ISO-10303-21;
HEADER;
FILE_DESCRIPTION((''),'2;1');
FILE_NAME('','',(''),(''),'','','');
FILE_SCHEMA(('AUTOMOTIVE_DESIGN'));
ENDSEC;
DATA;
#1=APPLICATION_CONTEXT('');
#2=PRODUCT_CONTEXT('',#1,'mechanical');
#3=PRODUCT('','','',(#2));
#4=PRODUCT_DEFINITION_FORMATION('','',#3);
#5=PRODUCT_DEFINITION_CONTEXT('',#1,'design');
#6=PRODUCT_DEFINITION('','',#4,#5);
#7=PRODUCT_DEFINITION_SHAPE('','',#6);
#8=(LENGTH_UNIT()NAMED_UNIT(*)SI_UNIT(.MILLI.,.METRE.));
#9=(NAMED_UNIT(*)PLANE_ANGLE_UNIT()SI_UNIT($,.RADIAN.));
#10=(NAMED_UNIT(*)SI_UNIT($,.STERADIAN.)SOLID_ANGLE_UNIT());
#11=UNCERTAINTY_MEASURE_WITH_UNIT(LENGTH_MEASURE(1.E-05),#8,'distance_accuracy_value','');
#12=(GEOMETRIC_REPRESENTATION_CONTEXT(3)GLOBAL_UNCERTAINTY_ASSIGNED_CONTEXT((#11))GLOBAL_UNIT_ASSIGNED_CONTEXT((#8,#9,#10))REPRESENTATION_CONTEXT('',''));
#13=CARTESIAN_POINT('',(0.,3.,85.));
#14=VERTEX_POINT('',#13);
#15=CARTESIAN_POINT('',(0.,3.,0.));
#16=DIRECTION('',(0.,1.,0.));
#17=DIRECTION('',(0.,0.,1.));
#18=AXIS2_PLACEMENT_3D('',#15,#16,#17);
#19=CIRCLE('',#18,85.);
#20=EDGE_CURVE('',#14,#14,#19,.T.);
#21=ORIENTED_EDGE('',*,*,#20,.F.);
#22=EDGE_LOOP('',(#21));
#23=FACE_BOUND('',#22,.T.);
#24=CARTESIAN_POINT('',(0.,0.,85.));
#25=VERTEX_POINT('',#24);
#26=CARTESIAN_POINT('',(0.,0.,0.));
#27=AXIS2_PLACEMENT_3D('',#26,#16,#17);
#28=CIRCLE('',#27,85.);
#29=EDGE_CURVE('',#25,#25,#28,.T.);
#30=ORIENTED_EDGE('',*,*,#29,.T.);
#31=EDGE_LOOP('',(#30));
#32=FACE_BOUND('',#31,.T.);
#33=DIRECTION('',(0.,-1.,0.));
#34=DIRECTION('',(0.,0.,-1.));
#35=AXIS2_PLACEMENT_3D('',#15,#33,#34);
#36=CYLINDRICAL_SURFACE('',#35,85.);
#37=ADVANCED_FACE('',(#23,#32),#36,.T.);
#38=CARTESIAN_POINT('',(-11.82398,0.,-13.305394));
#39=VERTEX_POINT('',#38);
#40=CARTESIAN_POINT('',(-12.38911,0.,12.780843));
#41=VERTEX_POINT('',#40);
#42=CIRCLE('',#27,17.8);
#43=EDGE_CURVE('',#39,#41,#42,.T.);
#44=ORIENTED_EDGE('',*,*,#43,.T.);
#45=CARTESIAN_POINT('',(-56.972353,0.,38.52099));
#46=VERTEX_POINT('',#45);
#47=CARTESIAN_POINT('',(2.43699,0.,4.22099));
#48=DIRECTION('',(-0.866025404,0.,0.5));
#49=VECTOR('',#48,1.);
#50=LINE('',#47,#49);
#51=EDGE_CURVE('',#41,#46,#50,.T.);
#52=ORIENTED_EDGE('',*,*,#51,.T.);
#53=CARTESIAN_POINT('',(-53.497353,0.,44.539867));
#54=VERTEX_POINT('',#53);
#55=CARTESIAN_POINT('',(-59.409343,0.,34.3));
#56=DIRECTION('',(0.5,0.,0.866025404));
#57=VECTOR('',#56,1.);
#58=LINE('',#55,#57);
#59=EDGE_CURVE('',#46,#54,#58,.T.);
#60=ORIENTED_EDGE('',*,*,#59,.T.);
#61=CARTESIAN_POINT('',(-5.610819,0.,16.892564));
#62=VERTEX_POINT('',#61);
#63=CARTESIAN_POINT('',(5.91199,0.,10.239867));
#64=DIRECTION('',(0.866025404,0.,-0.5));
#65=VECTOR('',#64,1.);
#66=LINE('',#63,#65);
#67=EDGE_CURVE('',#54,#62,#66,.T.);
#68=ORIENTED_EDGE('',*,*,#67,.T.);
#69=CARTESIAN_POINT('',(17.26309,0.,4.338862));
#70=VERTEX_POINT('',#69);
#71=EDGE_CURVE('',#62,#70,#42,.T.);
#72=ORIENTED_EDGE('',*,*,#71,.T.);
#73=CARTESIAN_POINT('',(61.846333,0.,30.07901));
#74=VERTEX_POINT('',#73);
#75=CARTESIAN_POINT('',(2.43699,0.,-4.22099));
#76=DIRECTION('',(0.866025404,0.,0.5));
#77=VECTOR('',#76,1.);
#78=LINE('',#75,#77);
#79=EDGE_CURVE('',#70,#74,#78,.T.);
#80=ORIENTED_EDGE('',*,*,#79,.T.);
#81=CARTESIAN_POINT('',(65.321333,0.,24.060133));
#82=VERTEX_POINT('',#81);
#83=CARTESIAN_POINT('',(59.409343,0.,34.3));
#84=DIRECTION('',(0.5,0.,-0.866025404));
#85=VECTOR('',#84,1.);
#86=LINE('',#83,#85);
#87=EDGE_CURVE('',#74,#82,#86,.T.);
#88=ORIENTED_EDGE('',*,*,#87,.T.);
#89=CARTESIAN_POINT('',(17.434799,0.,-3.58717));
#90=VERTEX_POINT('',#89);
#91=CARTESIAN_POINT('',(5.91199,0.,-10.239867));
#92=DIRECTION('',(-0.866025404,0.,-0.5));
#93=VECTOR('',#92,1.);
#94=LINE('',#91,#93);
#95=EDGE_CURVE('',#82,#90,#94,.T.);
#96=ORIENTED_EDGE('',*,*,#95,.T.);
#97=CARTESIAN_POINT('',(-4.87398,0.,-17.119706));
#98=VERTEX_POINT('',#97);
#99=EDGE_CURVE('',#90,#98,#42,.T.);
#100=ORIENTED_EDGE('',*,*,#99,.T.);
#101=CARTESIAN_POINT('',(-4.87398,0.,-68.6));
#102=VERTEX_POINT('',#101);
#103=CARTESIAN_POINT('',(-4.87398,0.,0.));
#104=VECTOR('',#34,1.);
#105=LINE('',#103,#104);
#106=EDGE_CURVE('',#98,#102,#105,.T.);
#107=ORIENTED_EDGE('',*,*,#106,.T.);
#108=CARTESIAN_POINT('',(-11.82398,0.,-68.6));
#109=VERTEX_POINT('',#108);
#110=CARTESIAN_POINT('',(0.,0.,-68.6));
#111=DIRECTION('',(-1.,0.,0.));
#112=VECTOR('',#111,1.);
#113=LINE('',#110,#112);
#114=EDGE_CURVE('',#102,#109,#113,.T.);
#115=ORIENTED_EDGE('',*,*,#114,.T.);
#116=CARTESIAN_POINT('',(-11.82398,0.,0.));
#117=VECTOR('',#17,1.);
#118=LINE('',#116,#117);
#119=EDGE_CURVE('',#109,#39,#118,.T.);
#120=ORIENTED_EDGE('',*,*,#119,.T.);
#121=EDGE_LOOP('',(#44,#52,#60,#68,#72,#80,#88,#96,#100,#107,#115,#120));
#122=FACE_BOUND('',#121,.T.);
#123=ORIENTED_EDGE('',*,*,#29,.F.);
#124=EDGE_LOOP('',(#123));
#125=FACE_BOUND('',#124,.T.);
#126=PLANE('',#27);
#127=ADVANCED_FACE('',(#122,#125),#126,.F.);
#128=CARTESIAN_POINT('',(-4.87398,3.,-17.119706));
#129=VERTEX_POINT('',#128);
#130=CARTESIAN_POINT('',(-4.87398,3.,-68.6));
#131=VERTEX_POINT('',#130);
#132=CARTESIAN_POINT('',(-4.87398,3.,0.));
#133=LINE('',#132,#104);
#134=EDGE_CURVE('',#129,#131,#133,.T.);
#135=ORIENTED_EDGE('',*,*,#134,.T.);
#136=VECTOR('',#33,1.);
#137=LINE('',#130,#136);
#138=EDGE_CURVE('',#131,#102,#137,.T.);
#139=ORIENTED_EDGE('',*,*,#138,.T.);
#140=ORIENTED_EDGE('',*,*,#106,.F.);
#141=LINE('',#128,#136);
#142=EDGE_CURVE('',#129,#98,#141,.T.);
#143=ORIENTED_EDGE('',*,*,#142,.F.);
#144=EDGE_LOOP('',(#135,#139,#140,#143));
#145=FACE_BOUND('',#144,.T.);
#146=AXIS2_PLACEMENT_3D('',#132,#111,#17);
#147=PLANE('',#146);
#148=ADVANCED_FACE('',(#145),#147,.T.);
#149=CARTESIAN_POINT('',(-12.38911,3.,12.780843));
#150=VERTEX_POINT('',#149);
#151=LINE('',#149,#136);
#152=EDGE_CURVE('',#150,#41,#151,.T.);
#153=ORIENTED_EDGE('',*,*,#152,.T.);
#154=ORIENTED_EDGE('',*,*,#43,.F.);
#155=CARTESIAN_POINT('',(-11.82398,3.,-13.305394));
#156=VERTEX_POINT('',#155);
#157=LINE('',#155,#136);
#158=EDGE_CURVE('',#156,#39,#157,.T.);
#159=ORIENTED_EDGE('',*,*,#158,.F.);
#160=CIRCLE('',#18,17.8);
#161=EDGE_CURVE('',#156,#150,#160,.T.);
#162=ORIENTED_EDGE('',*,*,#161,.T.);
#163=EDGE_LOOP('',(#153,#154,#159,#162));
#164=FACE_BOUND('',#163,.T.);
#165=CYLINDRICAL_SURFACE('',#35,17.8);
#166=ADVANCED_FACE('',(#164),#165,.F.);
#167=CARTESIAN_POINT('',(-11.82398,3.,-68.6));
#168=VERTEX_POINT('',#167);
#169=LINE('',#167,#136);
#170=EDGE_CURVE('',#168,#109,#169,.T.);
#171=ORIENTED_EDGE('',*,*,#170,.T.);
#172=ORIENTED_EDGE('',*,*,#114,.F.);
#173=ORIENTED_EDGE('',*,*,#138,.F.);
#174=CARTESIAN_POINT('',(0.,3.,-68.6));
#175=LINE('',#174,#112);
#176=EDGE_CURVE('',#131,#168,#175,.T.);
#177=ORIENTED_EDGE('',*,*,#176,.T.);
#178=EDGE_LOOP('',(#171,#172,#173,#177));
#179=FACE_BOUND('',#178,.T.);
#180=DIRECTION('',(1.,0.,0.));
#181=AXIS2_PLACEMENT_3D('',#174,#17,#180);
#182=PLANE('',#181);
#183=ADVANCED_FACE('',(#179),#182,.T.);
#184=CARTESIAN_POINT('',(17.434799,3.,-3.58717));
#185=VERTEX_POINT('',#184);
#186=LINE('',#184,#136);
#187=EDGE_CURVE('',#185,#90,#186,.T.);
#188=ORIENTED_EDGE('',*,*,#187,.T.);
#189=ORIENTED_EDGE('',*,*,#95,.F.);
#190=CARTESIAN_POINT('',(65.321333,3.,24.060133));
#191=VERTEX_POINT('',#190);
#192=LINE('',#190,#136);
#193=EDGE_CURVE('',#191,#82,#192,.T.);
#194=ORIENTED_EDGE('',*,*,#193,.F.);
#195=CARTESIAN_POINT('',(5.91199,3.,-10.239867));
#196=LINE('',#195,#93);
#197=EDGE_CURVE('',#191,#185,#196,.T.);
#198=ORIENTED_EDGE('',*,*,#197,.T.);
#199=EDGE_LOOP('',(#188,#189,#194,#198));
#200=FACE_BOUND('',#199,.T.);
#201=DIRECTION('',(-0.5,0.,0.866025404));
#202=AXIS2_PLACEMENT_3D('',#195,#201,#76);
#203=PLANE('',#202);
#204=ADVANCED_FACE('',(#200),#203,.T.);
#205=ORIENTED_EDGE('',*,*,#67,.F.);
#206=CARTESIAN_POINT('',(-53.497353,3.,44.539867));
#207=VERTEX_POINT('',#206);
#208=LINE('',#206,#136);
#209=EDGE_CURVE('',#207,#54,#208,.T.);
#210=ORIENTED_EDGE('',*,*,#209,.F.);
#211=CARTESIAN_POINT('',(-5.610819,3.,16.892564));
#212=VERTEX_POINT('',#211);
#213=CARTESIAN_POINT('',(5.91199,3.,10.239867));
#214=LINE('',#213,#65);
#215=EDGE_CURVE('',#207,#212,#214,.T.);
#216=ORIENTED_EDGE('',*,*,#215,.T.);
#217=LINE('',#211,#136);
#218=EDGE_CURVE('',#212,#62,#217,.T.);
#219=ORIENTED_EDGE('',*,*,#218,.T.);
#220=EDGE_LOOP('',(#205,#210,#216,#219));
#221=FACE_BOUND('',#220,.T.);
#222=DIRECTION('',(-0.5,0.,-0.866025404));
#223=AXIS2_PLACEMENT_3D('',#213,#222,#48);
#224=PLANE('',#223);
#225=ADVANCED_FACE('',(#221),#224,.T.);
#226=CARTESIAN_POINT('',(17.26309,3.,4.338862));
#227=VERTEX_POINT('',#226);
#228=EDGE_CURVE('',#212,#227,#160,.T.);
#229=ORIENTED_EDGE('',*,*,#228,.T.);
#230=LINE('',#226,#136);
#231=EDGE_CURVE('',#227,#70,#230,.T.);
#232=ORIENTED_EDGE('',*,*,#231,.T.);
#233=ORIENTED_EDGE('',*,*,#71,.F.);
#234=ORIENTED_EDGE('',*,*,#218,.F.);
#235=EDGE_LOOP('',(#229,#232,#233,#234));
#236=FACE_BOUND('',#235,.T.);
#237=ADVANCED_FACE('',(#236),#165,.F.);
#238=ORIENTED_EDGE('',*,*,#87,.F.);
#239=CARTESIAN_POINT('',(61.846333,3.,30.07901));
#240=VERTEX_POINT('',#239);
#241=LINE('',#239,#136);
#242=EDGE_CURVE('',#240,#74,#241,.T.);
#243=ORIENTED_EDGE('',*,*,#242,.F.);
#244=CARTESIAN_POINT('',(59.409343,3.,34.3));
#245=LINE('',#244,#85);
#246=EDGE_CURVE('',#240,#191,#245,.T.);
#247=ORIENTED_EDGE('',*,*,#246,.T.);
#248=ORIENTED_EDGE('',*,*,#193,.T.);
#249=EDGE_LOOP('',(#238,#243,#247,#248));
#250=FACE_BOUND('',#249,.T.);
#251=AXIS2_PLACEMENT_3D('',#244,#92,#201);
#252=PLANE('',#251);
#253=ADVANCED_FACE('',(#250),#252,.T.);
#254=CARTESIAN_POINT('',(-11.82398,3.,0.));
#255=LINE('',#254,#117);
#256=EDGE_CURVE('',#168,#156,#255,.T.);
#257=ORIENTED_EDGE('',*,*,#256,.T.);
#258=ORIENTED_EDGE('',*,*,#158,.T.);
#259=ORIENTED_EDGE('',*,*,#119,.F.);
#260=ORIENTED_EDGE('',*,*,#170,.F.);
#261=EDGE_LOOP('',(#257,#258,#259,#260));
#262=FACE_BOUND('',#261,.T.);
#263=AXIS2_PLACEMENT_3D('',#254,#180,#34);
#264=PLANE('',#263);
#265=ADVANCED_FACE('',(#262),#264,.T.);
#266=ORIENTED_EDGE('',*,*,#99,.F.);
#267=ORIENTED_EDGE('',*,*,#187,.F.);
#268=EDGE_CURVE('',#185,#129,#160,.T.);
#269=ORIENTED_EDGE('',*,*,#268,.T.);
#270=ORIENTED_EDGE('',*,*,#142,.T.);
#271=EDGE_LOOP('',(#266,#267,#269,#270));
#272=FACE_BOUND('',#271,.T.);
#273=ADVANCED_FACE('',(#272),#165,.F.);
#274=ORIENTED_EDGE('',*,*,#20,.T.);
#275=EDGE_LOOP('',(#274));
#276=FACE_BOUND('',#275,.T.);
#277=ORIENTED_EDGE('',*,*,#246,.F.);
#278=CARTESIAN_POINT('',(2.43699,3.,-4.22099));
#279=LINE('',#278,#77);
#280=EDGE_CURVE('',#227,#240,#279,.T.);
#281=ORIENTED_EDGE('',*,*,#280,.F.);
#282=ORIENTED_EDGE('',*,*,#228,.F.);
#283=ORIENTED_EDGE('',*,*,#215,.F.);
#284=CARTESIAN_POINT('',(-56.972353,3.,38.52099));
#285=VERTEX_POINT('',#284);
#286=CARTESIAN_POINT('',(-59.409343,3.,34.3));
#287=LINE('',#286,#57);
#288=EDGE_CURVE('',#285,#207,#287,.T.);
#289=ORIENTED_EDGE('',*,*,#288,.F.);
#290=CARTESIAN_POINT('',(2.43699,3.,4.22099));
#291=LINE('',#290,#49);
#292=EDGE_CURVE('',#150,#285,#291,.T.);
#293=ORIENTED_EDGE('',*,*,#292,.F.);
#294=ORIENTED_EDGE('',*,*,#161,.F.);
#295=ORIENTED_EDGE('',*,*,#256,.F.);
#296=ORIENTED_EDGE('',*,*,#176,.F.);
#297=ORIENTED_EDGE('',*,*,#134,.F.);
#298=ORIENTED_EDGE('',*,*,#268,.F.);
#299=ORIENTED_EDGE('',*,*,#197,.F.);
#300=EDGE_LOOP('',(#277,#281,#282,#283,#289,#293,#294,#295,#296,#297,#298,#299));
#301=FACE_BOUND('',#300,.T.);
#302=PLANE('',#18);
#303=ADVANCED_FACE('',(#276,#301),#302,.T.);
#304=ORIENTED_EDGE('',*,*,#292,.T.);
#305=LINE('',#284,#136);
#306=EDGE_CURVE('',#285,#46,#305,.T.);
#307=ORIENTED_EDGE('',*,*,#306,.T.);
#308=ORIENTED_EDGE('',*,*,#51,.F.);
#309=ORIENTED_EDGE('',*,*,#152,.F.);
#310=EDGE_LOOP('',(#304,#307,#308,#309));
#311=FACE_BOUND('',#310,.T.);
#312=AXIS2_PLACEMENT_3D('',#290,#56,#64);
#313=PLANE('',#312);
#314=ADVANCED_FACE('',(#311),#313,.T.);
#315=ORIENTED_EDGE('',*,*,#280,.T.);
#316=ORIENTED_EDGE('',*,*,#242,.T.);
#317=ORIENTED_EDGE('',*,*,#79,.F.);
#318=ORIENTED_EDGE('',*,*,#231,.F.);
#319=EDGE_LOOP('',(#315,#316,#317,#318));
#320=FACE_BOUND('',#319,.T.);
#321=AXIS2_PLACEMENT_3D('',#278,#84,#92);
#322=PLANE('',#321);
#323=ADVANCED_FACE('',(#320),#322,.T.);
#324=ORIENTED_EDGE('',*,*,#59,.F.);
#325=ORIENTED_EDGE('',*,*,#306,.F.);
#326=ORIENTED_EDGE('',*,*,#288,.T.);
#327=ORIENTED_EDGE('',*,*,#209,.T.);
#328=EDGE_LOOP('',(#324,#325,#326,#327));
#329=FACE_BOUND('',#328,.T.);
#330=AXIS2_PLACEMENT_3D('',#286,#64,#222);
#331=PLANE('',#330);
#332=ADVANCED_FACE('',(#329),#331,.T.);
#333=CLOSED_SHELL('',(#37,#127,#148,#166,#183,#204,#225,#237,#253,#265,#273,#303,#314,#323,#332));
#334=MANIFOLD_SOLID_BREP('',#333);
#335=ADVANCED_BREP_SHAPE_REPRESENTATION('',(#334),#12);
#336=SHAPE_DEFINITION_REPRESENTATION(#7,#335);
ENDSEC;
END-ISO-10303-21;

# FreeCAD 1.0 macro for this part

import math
import FreeCAD as App
import Part
import Sketcher
from FreeCAD import Vector
Q = App.Units.Quantity

doc = App.newDocument("Part")
body = doc.addObject("PartDesign::Body", "Body")

# Sketch on XZ plane
sketch1 = body.newObject("Sketcher::SketchObject", "Sketch")
sketch1.AttachmentSupport = (doc.getObject("XZ_Plane"), [""])
sketch1.MapMode = "FlatFace"
sketch1.addGeometry(Part.Circle(Vector(0, 0, 0), Vector(0, 0, 1), 85), False)
sketch1.addGeometry(Part.LineSegment(Vector(-11.82398, -68.6, 0), Vector(-4.87398, -68.6, 0)), False)
sketch1.addGeometry(Part.LineSegment(Vector(-4.87398, -68.6, 0), Vector(-4.87398, -17.119706, 0)), False)
sketch1.addGeometry(Part.ArcOfCircle(Part.Circle(Vector(0, 0, 0), Vector(0, 0, 1), 17.8), math.radians(-105.891653), math.radians(-11.626234)), False)
sketch1.addGeometry(Part.LineSegment(Vector(17.434799, -3.58717, 0), Vector(65.321333, 24.060133, 0)), False)
sketch1.addGeometry(Part.LineSegment(Vector(65.321333, 24.060133, 0), Vector(61.846333, 30.07901, 0)), False)
sketch1.addGeometry(Part.LineSegment(Vector(61.846333, 30.07901, 0), Vector(17.26309, 4.338862, 0)), False)
sketch1.addGeometry(Part.ArcOfCircle(Part.Circle(Vector(0, 0, 0), Vector(0, 0, 1), 17.8), math.radians(14.108347), math.radians(108.373766)), False)
sketch1.addGeometry(Part.LineSegment(Vector(-5.610819, 16.892564, 0), Vector(-53.497353, 44.539867, 0)), False)
sketch1.addGeometry(Part.LineSegment(Vector(-53.497353, 44.539867, 0), Vector(-56.972353, 38.52099, 0)), False)
sketch1.addGeometry(Part.LineSegment(Vector(-56.972353, 38.52099, 0), Vector(-12.38911, 12.780843, 0)), False)
sketch1.addGeometry(Part.ArcOfCircle(Part.Circle(Vector(0, 0, 0), Vector(0, 0, 1), 17.8), math.radians(134.108347), math.radians(228.373766)), False)
sketch1.addGeometry(Part.LineSegment(Vector(-11.82398, -13.305394, 0), Vector(-11.82398, -68.6, 0)), False)
sketch1.addConstraint(Sketcher.Constraint("Coincident", 1, 2, 2, 1))
sketch1.addConstraint(Sketcher.Constraint("Coincident", 2, 2, 3, 1))
sketch1.addConstraint(Sketcher.Constraint("Coincident", 3, 2, 4, 1))
sketch1.addConstraint(Sketcher.Constraint("Coincident", 4, 2, 5, 1))
sketch1.addConstraint(Sketcher.Constraint("Coincident", 5, 2, 6, 1))
sketch1.addConstraint(Sketcher.Constraint("Coincident", 6, 2, 7, 1))
sketch1.addConstraint(Sketcher.Constraint("Coincident", 7, 2, 8, 1))
sketch1.addConstraint(Sketcher.Constraint("Coincident", 8, 2, 9, 1))
sketch1.addConstraint(Sketcher.Constraint("Coincident", 9, 2, 10, 1))
sketch1.addConstraint(Sketcher.Constraint("Coincident", 10, 2, 11, 1))
sketch1.addConstraint(Sketcher.Constraint("Coincident", 11, 2, 12, 1))
sketch1.addConstraint(Sketcher.Constraint("Coincident", 12, 2, 1, 1))
sketch1.addConstraint(Sketcher.Constraint("Horizontal", 1))
sketch1.addConstraint(Sketcher.Constraint("Vertical", 2))
sketch1.addConstraint(Sketcher.Constraint("Vertical", 12))
sketch1.addConstraint(Sketcher.Constraint("Coincident", 0, 3, -1, 1))
sketch1.addConstraint(Sketcher.Constraint("Coincident", 3, 3, -1, 1))
sketch1.addConstraint(Sketcher.Constraint("Coincident", 7, 3, -1, 1))
sketch1.addConstraint(Sketcher.Constraint("Coincident", 11, 3, -1, 1))
sketch1.addConstraint(Sketcher.Constraint("Equal", 3, 7))
sketch1.addConstraint(Sketcher.Constraint("Equal", 7, 11))
sketch1.addConstraint(Sketcher.Constraint("Perpendicular", 4, 5))
sketch1.addConstraint(Sketcher.Constraint("Perpendicular", 5, 6))
sketch1.addConstraint(Sketcher.Constraint("Perpendicular", 8, 9))
sketch1.addConstraint(Sketcher.Constraint("Perpendicular", 9, 10))
sketch1.addConstraint(Sketcher.Constraint("Equal", 4, 8))
sketch1.addConstraint(Sketcher.Constraint("Equal", 5, 9))
sketch1.addConstraint(Sketcher.Constraint("Equal", 6, 10))
sketch1.addConstraint(Sketcher.Constraint("Diameter", 0, 170.0))
sketch1.addConstraint(Sketcher.Constraint("Radius", 3, 17.8))
sketch1.addConstraint(Sketcher.Constraint("Angle", 4, Q("30 deg")))
sketch1.addConstraint(Sketcher.Constraint("Angle", 8, Q("150 deg")))
sketch1.addConstraint(Sketcher.Constraint("DistanceX", 1, 1, 1, 2, 6.95))
sketch1.addConstraint(Sketcher.Constraint("DistanceY", 1, 2, -1, 1, 68.6))
sketch1.addConstraint(Sketcher.Constraint("Distance", 5, 6.95))
sketch1.addConstraint(Sketcher.Constraint("DistanceX", -1, 1, 3, 2, 17.434799))
sketch1.addConstraint(Sketcher.Constraint("DistanceY", 2, 1, 2, 2, 51.480294))
sketch1.addConstraint(Sketcher.Constraint("DistanceY", -1, 1, 5, 2, 30.07901))
pad1 = body.newObject("PartDesign::Pad", "Pad")
pad1.Profile = sketch1
pad1.Length = 3
pad1.Reversed = True

doc.recompute()
